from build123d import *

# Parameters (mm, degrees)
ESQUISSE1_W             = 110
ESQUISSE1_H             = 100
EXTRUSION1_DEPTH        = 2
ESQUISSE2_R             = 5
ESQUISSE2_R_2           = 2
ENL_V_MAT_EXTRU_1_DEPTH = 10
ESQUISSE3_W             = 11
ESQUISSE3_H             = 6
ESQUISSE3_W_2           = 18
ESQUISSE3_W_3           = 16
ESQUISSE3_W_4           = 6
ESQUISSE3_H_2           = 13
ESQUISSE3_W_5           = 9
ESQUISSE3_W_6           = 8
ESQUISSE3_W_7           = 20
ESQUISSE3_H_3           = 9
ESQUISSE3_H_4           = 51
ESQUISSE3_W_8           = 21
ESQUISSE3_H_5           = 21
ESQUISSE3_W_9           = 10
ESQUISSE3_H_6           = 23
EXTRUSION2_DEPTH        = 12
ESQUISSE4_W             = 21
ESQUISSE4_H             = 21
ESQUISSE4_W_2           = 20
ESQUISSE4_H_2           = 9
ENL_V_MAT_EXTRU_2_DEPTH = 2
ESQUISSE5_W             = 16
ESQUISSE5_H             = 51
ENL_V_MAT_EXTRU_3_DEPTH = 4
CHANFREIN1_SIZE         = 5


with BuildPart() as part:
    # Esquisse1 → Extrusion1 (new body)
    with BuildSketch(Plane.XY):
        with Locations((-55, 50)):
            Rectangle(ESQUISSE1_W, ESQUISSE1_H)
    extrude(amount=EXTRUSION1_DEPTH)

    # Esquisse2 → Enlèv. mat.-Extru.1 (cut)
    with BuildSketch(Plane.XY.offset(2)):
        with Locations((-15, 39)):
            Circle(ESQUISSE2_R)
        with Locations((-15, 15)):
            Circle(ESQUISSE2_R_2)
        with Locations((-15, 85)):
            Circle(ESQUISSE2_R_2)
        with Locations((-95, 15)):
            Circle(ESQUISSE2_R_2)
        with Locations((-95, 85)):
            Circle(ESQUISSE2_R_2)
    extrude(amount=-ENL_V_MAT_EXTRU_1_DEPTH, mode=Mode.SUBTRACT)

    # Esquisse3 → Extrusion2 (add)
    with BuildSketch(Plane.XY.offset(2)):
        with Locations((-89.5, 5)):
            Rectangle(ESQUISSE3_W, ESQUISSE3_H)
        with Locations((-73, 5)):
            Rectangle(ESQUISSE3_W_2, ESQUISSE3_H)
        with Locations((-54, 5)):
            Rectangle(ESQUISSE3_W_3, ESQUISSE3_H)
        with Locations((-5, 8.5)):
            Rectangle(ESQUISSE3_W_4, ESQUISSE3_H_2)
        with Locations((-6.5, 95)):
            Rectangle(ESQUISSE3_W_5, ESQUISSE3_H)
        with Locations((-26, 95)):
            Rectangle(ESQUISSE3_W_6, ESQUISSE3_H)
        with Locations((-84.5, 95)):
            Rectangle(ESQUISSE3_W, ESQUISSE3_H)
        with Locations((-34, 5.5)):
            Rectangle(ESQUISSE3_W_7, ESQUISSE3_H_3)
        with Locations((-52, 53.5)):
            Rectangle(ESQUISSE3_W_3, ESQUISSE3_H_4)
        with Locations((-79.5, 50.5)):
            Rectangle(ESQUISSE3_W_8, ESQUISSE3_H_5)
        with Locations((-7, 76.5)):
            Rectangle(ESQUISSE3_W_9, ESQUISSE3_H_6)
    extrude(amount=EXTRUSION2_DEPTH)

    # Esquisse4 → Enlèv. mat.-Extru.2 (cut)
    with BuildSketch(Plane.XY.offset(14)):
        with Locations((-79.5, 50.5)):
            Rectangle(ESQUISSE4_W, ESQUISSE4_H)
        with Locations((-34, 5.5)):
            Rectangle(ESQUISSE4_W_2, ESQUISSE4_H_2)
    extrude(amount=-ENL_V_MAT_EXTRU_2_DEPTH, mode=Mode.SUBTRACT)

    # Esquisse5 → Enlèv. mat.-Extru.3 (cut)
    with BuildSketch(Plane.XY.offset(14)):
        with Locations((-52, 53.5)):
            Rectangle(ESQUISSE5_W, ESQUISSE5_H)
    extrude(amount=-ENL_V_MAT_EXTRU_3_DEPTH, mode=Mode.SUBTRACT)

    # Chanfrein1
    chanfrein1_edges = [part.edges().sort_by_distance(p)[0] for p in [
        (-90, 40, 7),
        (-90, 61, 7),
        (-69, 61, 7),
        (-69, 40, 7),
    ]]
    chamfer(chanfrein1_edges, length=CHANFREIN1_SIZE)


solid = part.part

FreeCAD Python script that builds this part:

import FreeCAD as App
import Part
import Sketcher

V = App.Vector


def edges_at(feature, points):
    """Names of the edges that pass closest to the given points."""
    edges = feature.Shape.Edges
    near = lambda p: min(range(len(edges)), key=lambda i: edges[i].distToShape(Part.Vertex(*p))[0])
    return sorted({f"Edge{near(p) + 1}" for p in points})

doc = App.newDocument("Part")
params = doc.addObject("Spreadsheet::Sheet", "Params")
for row, (alias, value) in enumerate([
    ("sketch1_width", "110 mm"),
    ("sketch1_height", "100 mm"),
    ("pad1_length", "2 mm"),
    ("sketch2_diameter", "10 mm"),
    ("sketch2_diameter2", "4 mm"),
    ("pocket1_length", "10 mm"),
    ("sketch3_width", "11 mm"),
    ("sketch3_width2", "18 mm"),
    ("sketch3_width3", "16 mm"),
    ("sketch3_width4", "6 mm"),
    ("sketch3_width5", "9 mm"),
    ("pad2_length", "12 mm"),
    ("sketch4_width", "21 mm"),
    ("sketch4_width2", "20 mm"),
    ("sketch4_height", "9 mm"),
    ("pocket2_length", "2 mm"),
    ("sketch5_width", "16 mm"),
    ("sketch5_height", "51 mm"),
    ("pocket3_length", "4 mm"),
    ("chamfer_size", "5 mm"),
], start=1):
    params.set(f"A{row}", alias)
    params.set(f"B{row}", "=" + value)
    params.setAlias(f"B{row}", alias)

body = doc.addObject("PartDesign::Body", "Body")

# Sketch on XY plane
sketch1 = doc.addObject("Sketcher::SketchObject", "Sketch")
body.addObject(sketch1)
sketch1.AttachmentSupport = (doc.XY_Plane, [""])
sketch1.MapMode = "FlatFace"
sketch1.addGeometry([
    Part.LineSegment(V(-110, 100, 0), V(-110, 0, 0)),
    Part.LineSegment(V(-110, 0, 0), V(0, 0, 0)),
    Part.LineSegment(V(0, 0, 0), V(0, 100, 0)),
    Part.LineSegment(V(0, 100, 0), V(-110, 100, 0)),
], False)
sketch1.addConstraint([
    Sketcher.Constraint("Coincident", 0, 2, 1, 1),
    Sketcher.Constraint("Coincident", 1, 2, 2, 1),
    Sketcher.Constraint("Coincident", 2, 2, 3, 1),
    Sketcher.Constraint("Coincident", 3, 2, 0, 1),
    Sketcher.Constraint("Vertical", 0),
    Sketcher.Constraint("Horizontal", 1),
    Sketcher.Constraint("Vertical", 2),
    Sketcher.Constraint("Horizontal", 3),
    Sketcher.Constraint("Coincident", 1, 2, -1, 1),
    Sketcher.Constraint("DistanceX", 1, 1, 1, 2, 110.0),
    Sketcher.Constraint("DistanceY", 0, 2, 0, 1, 100.0),
])
sketch1.setExpression("Constraints[9]", "Params.sketch1_width")
sketch1.setExpression("Constraints[10]", "Params.sketch1_height")
pad1 = doc.addObject("PartDesign::Pad", "Pad")
body.addObject(pad1)
pad1.Profile = sketch1
pad1.setExpression("Length", "Params.pad1_length")

# Sketch on XY plane
sketch2 = doc.addObject("Sketcher::SketchObject", "Sketch001")
body.addObject(sketch2)
sketch2.AttachmentSupport = (doc.XY_Plane, [""])
sketch2.MapMode = "FlatFace"
sketch2.AttachmentOffset = App.Placement(V(0, 0, 2), App.Rotation())
sketch2.addGeometry([
    Part.Circle(V(-15, 39, 0), V(0, 0, 1), 5),  # 0
    Part.Circle(V(-15, 15, 0), V(0, 0, 1), 2),  # 1
    Part.Circle(V(-15, 85, 0), V(0, 0, 1), 2),  # 2
    Part.Circle(V(-95, 15, 0), V(0, 0, 1), 2),  # 3
    Part.Circle(V(-95, 85, 0), V(0, 0, 1), 2),  # 4
], False)
sketch2.addConstraint([
    Sketcher.Constraint("Equal", 1, 2),
    Sketcher.Constraint("Equal", 2, 3),
    Sketcher.Constraint("Equal", 3, 4),
    Sketcher.Constraint("Horizontal", 1, 3, 3, 3),
    Sketcher.Constraint("Horizontal", 2, 3, 4, 3),
    Sketcher.Constraint("Vertical", 0, 3, 1, 3),
    Sketcher.Constraint("Vertical", 1, 3, 2, 3),
    Sketcher.Constraint("Vertical", 3, 3, 4, 3),
    Sketcher.Constraint("Diameter", 0, 10.0),
    Sketcher.Constraint("Diameter", 1, 4.0),
    Sketcher.Constraint("DistanceX", 0, 3, -1, 1, 15.0),
    Sketcher.Constraint("DistanceY", -1, 1, 0, 3, 39.0),
    Sketcher.Constraint("DistanceY", -1, 1, 1, 3, 15.0),
    Sketcher.Constraint("DistanceY", -1, 1, 2, 3, 85.0),
    Sketcher.Constraint("DistanceX", 3, 3, -1, 1, 95.0),
])
sketch2.setExpression("Constraints[8]", "Params.sketch2_diameter")
sketch2.setExpression("Constraints[9]", "Params.sketch2_diameter2")
pocket1 = doc.addObject("PartDesign::Pocket", "Pocket")
body.addObject(pocket1)
pocket1.Profile = sketch2
pocket1.setExpression("Length", "Params.pocket1_length")

# Sketch on XY plane
sketch3 = doc.addObject("Sketcher::SketchObject", "Sketch002")
body.addObject(sketch3)
sketch3.AttachmentSupport = (doc.XY_Plane, [""])
sketch3.MapMode = "FlatFace"
sketch3.AttachmentOffset = App.Placement(V(0, 0, 2), App.Rotation())
sketch3.addGeometry([
    Part.LineSegment(V(-95, 8, 0), V(-95, 2, 0)),  # 0
    Part.LineSegment(V(-95, 2, 0), V(-84, 2, 0)),  # 1
    Part.LineSegment(V(-84, 2, 0), V(-84, 8, 0)),  # 2
    Part.LineSegment(V(-84, 8, 0), V(-95, 8, 0)),  # 3
    Part.LineSegment(V(-82, 8, 0), V(-82, 2, 0)),  # 4
    Part.LineSegment(V(-82, 2, 0), V(-64, 2, 0)),  # 5
    Part.LineSegment(V(-64, 2, 0), V(-64, 8, 0)),  # 6
    Part.LineSegment(V(-64, 8, 0), V(-82, 8, 0)),  # 7
    Part.LineSegment(V(-62, 8, 0), V(-62, 2, 0)),  # 8
    Part.LineSegment(V(-62, 2, 0), V(-46, 2, 0)),  # 9
    Part.LineSegment(V(-46, 2, 0), V(-46, 8, 0)),  # 10
    Part.LineSegment(V(-46, 8, 0), V(-62, 8, 0)),  # 11
    Part.LineSegment(V(-8, 15, 0), V(-8, 2, 0)),  # 12
    Part.LineSegment(V(-8, 2, 0), V(-2, 2, 0)),  # 13
    Part.LineSegment(V(-2, 2, 0), V(-2, 15, 0)),  # 14
    Part.LineSegment(V(-2, 15, 0), V(-8, 15, 0)),  # 15
    Part.LineSegment(V(-11, 98, 0), V(-11, 92, 0)),  # 16
    Part.LineSegment(V(-11, 92, 0), V(-2, 92, 0)),  # 17
    Part.LineSegment(V(-2, 92, 0), V(-2, 98, 0)),  # 18
    Part.LineSegment(V(-2, 98, 0), V(-11, 98, 0)),  # 19
    Part.LineSegment(V(-30, 98, 0), V(-30, 92, 0)),  # 20
    Part.LineSegment(V(-30, 92, 0), V(-22, 92, 0)),  # 21
    Part.LineSegment(V(-22, 92, 0), V(-22, 98, 0)),  # 22
    Part.LineSegment(V(-22, 98, 0), V(-30, 98, 0)),  # 23
    Part.LineSegment(V(-90, 98, 0), V(-90, 92, 0)),  # 24
    Part.LineSegment(V(-90, 92, 0), V(-79, 92, 0)),  # 25
    Part.LineSegment(V(-79, 92, 0), V(-79, 98, 0)),  # 26
    Part.LineSegment(V(-79, 98, 0), V(-90, 98, 0)),  # 27
    Part.LineSegment(V(-44, 10, 0), V(-44, 1, 0)),  # 28
    Part.LineSegment(V(-44, 1, 0), V(-24, 1, 0)),  # 29
    Part.LineSegment(V(-24, 1, 0), V(-24, 10, 0)),  # 30
    Part.LineSegment(V(-24, 10, 0), V(-44, 10, 0)),  # 31
    Part.LineSegment(V(-60, 79, 0), V(-60, 28, 0)),  # 32
    Part.LineSegment(V(-60, 28, 0), V(-44, 28, 0)),  # 33
    Part.LineSegment(V(-44, 28, 0), V(-44, 79, 0)),  # 34
    Part.LineSegment(V(-44, 79, 0), V(-60, 79, 0)),  # 35
    Part.LineSegment(V(-90, 61, 0), V(-90, 40, 0)),  # 36
    Part.LineSegment(V(-90, 40, 0), V(-69, 40, 0)),  # 37
    Part.LineSegment(V(-69, 40, 0), V(-69, 61, 0)),  # 38
    Part.LineSegment(V(-69, 61, 0), V(-90, 61, 0)),  # 39
    Part.LineSegment(V(-12, 88, 0), V(-12, 65, 0)),  # 40
    Part.LineSegment(V(-12, 65, 0), V(-2, 65, 0)),  # 41
    Part.LineSegment(V(-2, 65, 0), V(-2, 88, 0)),  # 42
    Part.LineSegment(V(-2, 88, 0), V(-12, 88, 0)),  # 43
], False)
sketch3.addConstraint([
    Sketcher.Constraint("Coincident", 0, 2, 1, 1),
    Sketcher.Constraint("Coincident", 1, 2, 2, 1),
    Sketcher.Constraint("Coincident", 2, 2, 3, 1),
    Sketcher.Constraint("Coincident", 3, 2, 0, 1),
    Sketcher.Constraint("Coincident", 4, 2, 5, 1),
    Sketcher.Constraint("Coincident", 5, 2, 6, 1),
    Sketcher.Constraint("Coincident", 6, 2, 7, 1),
    Sketcher.Constraint("Coincident", 7, 2, 4, 1),
    Sketcher.Constraint("Coincident", 8, 2, 9, 1),
    Sketcher.Constraint("Coincident", 9, 2, 10, 1),
    Sketcher.Constraint("Coincident", 10, 2, 11, 1),
    Sketcher.Constraint("Coincident", 11, 2, 8, 1),
    Sketcher.Constraint("Coincident", 12, 2, 13, 1),
    Sketcher.Constraint("Coincident", 13, 2, 14, 1),
    Sketcher.Constraint("Coincident", 14, 2, 15, 1),
    Sketcher.Constraint("Coincident", 15, 2, 12, 1),
    Sketcher.Constraint("Coincident", 16, 2, 17, 1),
    Sketcher.Constraint("Coincident", 17, 2, 18, 1),
    Sketcher.Constraint("Coincident", 18, 2, 19, 1),
    Sketcher.Constraint("Coincident", 19, 2, 16, 1),
    Sketcher.Constraint("Coincident", 20, 2, 21, 1),
    Sketcher.Constraint("Coincident", 21, 2, 22, 1),
    Sketcher.Constraint("Coincident", 22, 2, 23, 1),
    Sketcher.Constraint("Coincident", 23, 2, 20, 1),
    Sketcher.Constraint("Coincident", 24, 2, 25, 1),
    Sketcher.Constraint("Coincident", 25, 2, 26, 1),
    Sketcher.Constraint("Coincident", 26, 2, 27, 1),
    Sketcher.Constraint("Coincident", 27, 2, 24, 1),
    Sketcher.Constraint("Coincident", 28, 2, 29, 1),
    Sketcher.Constraint("Coincident", 29, 2, 30, 1),
    Sketcher.Constraint("Coincident", 30, 2, 31, 1),
    Sketcher.Constraint("Coincident", 31, 2, 28, 1),
    Sketcher.Constraint("Coincident", 32, 2, 33, 1),
    Sketcher.Constraint("Coincident", 33, 2, 34, 1),
    Sketcher.Constraint("Coincident", 34, 2, 35, 1),
    Sketcher.Constraint("Coincident", 35, 2, 32, 1),
    Sketcher.Constraint("Coincident", 36, 2, 37, 1),
    Sketcher.Constraint("Coincident", 37, 2, 38, 1),
    Sketcher.Constraint("Coincident", 38, 2, 39, 1),
    Sketcher.Constraint("Coincident", 39, 2, 36, 1),
    Sketcher.Constraint("Coincident", 40, 2, 41, 1),
    Sketcher.Constraint("Coincident", 41, 2, 42, 1),
    Sketcher.Constraint("Coincident", 42, 2, 43, 1),
    Sketcher.Constraint("Coincident", 43, 2, 40, 1),
    Sketcher.Constraint("Vertical", 0),
    Sketcher.Constraint("Horizontal", 1),
    Sketcher.Constraint("Vertical", 2),
    Sketcher.Constraint("Horizontal", 3),
    Sketcher.Constraint("Vertical", 4),
    Sketcher.Constraint("Horizontal", 5),
    Sketcher.Constraint("Vertical", 6),
    Sketcher.Constraint("Horizontal", 7),
    Sketcher.Constraint("Vertical", 8),
    Sketcher.Constraint("Horizontal", 9),
    Sketcher.Constraint("Vertical", 10),
    Sketcher.Constraint("Horizontal", 11),
    Sketcher.Constraint("Vertical", 12),
    Sketcher.Constraint("Horizontal", 13),
    Sketcher.Constraint("Vertical", 14),
    Sketcher.Constraint("Horizontal", 15),
    Sketcher.Constraint("Vertical", 16),
    Sketcher.Constraint("Horizontal", 17),
    Sketcher.Constraint("Vertical", 18),
    Sketcher.Constraint("Horizontal", 19),
    Sketcher.Constraint("Vertical", 20),
    Sketcher.Constraint("Horizontal", 21),
    Sketcher.Constraint("Vertical", 22),
    Sketcher.Constraint("Horizontal", 23),
    Sketcher.Constraint("Vertical", 24),
    Sketcher.Constraint("Horizontal", 25),
    Sketcher.Constraint("Vertical", 26),
    Sketcher.Constraint("Horizontal", 27),
    Sketcher.Constraint("Vertical", 28),
    Sketcher.Constraint("Horizontal", 29),
    Sketcher.Constraint("Vertical", 30),
    Sketcher.Constraint("Horizontal", 31),
    Sketcher.Constraint("Vertical", 32),
    Sketcher.Constraint("Horizontal", 33),
    Sketcher.Constraint("Vertical", 34),
    Sketcher.Constraint("Horizontal", 35),
    Sketcher.Constraint("Vertical", 36),
    Sketcher.Constraint("Horizontal", 37),
    Sketcher.Constraint("Vertical", 38),
    Sketcher.Constraint("Horizontal", 39),
    Sketcher.Constraint("Vertical", 40),
    Sketcher.Constraint("Horizontal", 41),
    Sketcher.Constraint("Vertical", 42),
    Sketcher.Constraint("Horizontal", 43),
    Sketcher.Constraint("Horizontal", 1, 2, 4, 2),
    Sketcher.Constraint("Horizontal", 3, 2, 6, 2),
    Sketcher.Constraint("Horizontal", 5, 2, 8, 2),
    Sketcher.Constraint("Horizontal", 7, 2, 10, 2),
    Sketcher.Constraint("Horizontal", 9, 2, 12, 2),
    Sketcher.Constraint("Horizontal", 17, 2, 20, 2),
    Sketcher.Constraint("Horizontal", 19, 2, 22, 2),
    Sketcher.Constraint("Horizontal", 21, 2, 24, 2),
    Sketcher.Constraint("Horizontal", 23, 2, 26, 2),
    Sketcher.Constraint("Vertical", 14, 2, 17, 2),
    Sketcher.Constraint("Vertical", 31, 2, 33, 2),
    Sketcher.Constraint("Vertical", 27, 2, 36, 2),
    Sketcher.Constraint("Vertical", 18, 2, 41, 2),
    Sketcher.Constraint("Equal", 3, 25),
    Sketcher.Constraint("Equal", 11, 33),
    Sketcher.Constraint("Equal", 15, 0),
    Sketcher.Constraint("Equal", 10, 16),
    Sketcher.Constraint("Equal", 19, 28),
    Sketcher.Constraint("Equal", 39, 36),
    Sketcher.Constraint("DistanceX", 1, 1, 1, 2, 11.0),
    Sketcher.Constraint("DistanceX", 5, 1, 5, 2, 18.0),
    Sketcher.Constraint("DistanceX", 9, 1, 9, 2, 16.0),
    Sketcher.Constraint("DistanceX", 13, 1, 13, 2, 6.0),
    Sketcher.Constraint("DistanceX", 17, 1, 17, 2, 9.0),
    Sketcher.Constraint("DistanceX", 21, 1, 21, 2, 8.0),
    Sketcher.Constraint("DistanceX", 29, 1, 29, 2, 20.0),
    Sketcher.Constraint("DistanceX", 37, 1, 37, 2, 21.0),
    Sketcher.Constraint("DistanceX", 41, 1, 41, 2, 10.0),
    Sketcher.Constraint("DistanceY", 12, 2, 12, 1, 13.0),
    Sketcher.Constraint("DistanceY", 32, 2, 32, 1, 51.0),
    Sketcher.Constraint("DistanceY", 40, 2, 40, 1, 23.0),
    Sketcher.Constraint("DistanceX", 0, 2, -1, 1, 95.0),
    Sketcher.Constraint("DistanceY", -1, 1, 0, 2, 2.0),
    Sketcher.Constraint("DistanceX", 4, 2, -1, 1, 82.0),
    Sketcher.Constraint("DistanceX", 8, 2, -1, 1, 62.0),
    Sketcher.Constraint("DistanceX", 12, 2, -1, 1, 8.0),
    Sketcher.Constraint("DistanceY", -1, 1, 16, 2, 92.0),
    Sketcher.Constraint("DistanceX", 20, 2, -1, 1, 30.0),
    Sketcher.Constraint("DistanceX", 24, 2, -1, 1, 90.0),
    Sketcher.Constraint("DistanceX", 28, 2, -1, 1, 44.0),
    Sketcher.Constraint("DistanceY", -1, 1, 28, 2, 1.0),
    Sketcher.Constraint("DistanceY", -1, 1, 32, 2, 28.0),
    Sketcher.Constraint("DistanceY", -1, 1, 36, 2, 40.0),
    Sketcher.Constraint("DistanceY", -1, 1, 40, 2, 65.0),
])
sketch3.setExpression("Constraints[107]", "Params.sketch3_width")
sketch3.setExpression("Constraints[108]", "Params.sketch3_width2")
sketch3.setExpression("Constraints[109]", "Params.sketch3_width3")
sketch3.setExpression("Constraints[110]", "Params.sketch3_width4")
sketch3.setExpression("Constraints[111]", "Params.sketch3_width5")
pad2 = doc.addObject("PartDesign::Pad", "Pad001")
body.addObject(pad2)
pad2.Profile = sketch3
pad2.setExpression("Length", "Params.pad2_length")

# Sketch on XY plane
sketch4 = doc.addObject("Sketcher::SketchObject", "Sketch003")
body.addObject(sketch4)
sketch4.AttachmentSupport = (doc.XY_Plane, [""])
sketch4.MapMode = "FlatFace"
sketch4.AttachmentOffset = App.Placement(V(0, 0, 14), App.Rotation())
sketch4.addGeometry([
    Part.LineSegment(V(-90, 61, 0), V(-90, 40, 0)),  # 0
    Part.LineSegment(V(-90, 40, 0), V(-69, 40, 0)),  # 1
    Part.LineSegment(V(-69, 40, 0), V(-69, 61, 0)),  # 2
    Part.LineSegment(V(-69, 61, 0), V(-90, 61, 0)),  # 3
    Part.LineSegment(V(-44, 10, 0), V(-44, 1, 0)),  # 4
    Part.LineSegment(V(-44, 1, 0), V(-24, 1, 0)),  # 5
    Part.LineSegment(V(-24, 1, 0), V(-24, 10, 0)),  # 6
    Part.LineSegment(V(-24, 10, 0), V(-44, 10, 0)),  # 7
], False)
sketch4.addConstraint([
    Sketcher.Constraint("Coincident", 0, 2, 1, 1),
    Sketcher.Constraint("Coincident", 1, 2, 2, 1),
    Sketcher.Constraint("Coincident", 2, 2, 3, 1),
    Sketcher.Constraint("Coincident", 3, 2, 0, 1),
    Sketcher.Constraint("Coincident", 4, 2, 5, 1),
    Sketcher.Constraint("Coincident", 5, 2, 6, 1),
    Sketcher.Constraint("Coincident", 6, 2, 7, 1),
    Sketcher.Constraint("Coincident", 7, 2, 4, 1),
    Sketcher.Constraint("Vertical", 0),
    Sketcher.Constraint("Horizontal", 1),
    Sketcher.Constraint("Vertical", 2),
    Sketcher.Constraint("Horizontal", 3),
    Sketcher.Constraint("Vertical", 4),
    Sketcher.Constraint("Horizontal", 5),
    Sketcher.Constraint("Vertical", 6),
    Sketcher.Constraint("Horizontal", 7),
    Sketcher.Constraint("Equal", 3, 0),
    Sketcher.Constraint("DistanceX", 1, 1, 1, 2, 21.0),
    Sketcher.Constraint("DistanceX", 5, 1, 5, 2, 20.0),
    Sketcher.Constraint("DistanceY", 4, 2, 4, 1, 9.0),
    Sketcher.Constraint("DistanceX", 0, 2, -1, 1, 90.0),
    Sketcher.Constraint("DistanceY", -1, 1, 0, 2, 40.0),
    Sketcher.Constraint("DistanceX", 4, 2, -1, 1, 44.0),
    Sketcher.Constraint("DistanceY", -1, 1, 4, 2, 1.0),
])
sketch4.setExpression("Constraints[17]", "Params.sketch4_width")
sketch4.setExpression("Constraints[18]", "Params.sketch4_width2")
sketch4.setExpression("Constraints[19]", "Params.sketch4_height")
pocket2 = doc.addObject("PartDesign::Pocket", "Pocket001")
body.addObject(pocket2)
pocket2.Profile = sketch4
pocket2.setExpression("Length", "Params.pocket2_length")

# Sketch on XY plane
sketch5 = doc.addObject("Sketcher::SketchObject", "Sketch004")
body.addObject(sketch5)
sketch5.AttachmentSupport = (doc.XY_Plane, [""])
sketch5.MapMode = "FlatFace"
sketch5.AttachmentOffset = App.Placement(V(0, 0, 14), App.Rotation())
sketch5.addGeometry([
    Part.LineSegment(V(-60, 79, 0), V(-60, 28, 0)),
    Part.LineSegment(V(-60, 28, 0), V(-44, 28, 0)),
    Part.LineSegment(V(-44, 28, 0), V(-44, 79, 0)),
    Part.LineSegment(V(-44, 79, 0), V(-60, 79, 0)),
], False)
sketch5.addConstraint([
    Sketcher.Constraint("Coincident", 0, 2, 1, 1),
    Sketcher.Constraint("Coincident", 1, 2, 2, 1),
    Sketcher.Constraint("Coincident", 2, 2, 3, 1),
    Sketcher.Constraint("Coincident", 3, 2, 0, 1),
    Sketcher.Constraint("Vertical", 0),
    Sketcher.Constraint("Horizontal", 1),
    Sketcher.Constraint("Vertical", 2),
    Sketcher.Constraint("Horizontal", 3),
    Sketcher.Constraint("DistanceX", 1, 1, 1, 2, 16.0),
    Sketcher.Constraint("DistanceY", 0, 2, 0, 1, 51.0),
    Sketcher.Constraint("DistanceX", 0, 2, -1, 1, 60.0),
    Sketcher.Constraint("DistanceY", -1, 1, 0, 2, 28.0),
])
sketch5.setExpression("Constraints[8]", "Params.sketch5_width")
sketch5.setExpression("Constraints[9]", "Params.sketch5_height")
pocket3 = doc.addObject("PartDesign::Pocket", "Pocket002")
body.addObject(pocket3)
pocket3.Profile = sketch5
pocket3.setExpression("Length", "Params.pocket3_length")
doc.recompute()

chamfer = doc.addObject("PartDesign::Chamfer", "Chamfer")
body.addObject(chamfer)
chamfer.Base = (pocket3, edges_at(pocket3, [
    (-90, 40, 7),
    (-90, 61, 7),
    (-69, 61, 7),
    (-69, 40, 7),
]))
chamfer.setExpression("Size", "Params.chamfer_size")

doc.recompute()
